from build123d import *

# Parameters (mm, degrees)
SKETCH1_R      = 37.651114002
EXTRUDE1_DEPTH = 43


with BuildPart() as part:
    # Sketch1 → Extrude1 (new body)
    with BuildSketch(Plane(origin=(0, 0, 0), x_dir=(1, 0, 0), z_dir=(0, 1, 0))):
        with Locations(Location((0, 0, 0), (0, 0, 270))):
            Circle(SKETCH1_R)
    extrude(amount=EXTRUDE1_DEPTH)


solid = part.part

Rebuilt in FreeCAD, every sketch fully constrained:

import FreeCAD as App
import Part
import Sketcher
from FreeCAD import Vector

doc = App.newDocument("Part")
params = doc.addObject("Spreadsheet::Sheet", "Params")
for row, (alias, value) in enumerate([
    ("pad1_length", "43 mm"),
], start=1):
    params.set(f"A{row}", alias)
    params.set(f"B{row}", "=" + value)
    params.setAlias(f"B{row}", alias)

body = doc.addObject("PartDesign::Body", "Body")

# Sketch on XZ plane
sketch1 = doc.addObject("Sketcher::SketchObject", "Sketch")
body.addObject(sketch1)
sketch1.AttachmentSupport = (doc.XZ_Plane, [""])
sketch1.MapMode = "FlatFace"
sketch1.addGeometry(Part.Circle(Vector(0, 0, 0), Vector(0, 0, 1), 38), False)
sketch1.addConstraint([
    Sketcher.Constraint("Coincident", 0, 3, -1, 1),
    Sketcher.Constraint("Diameter", 0, 75.302228),
])
pad1 = doc.addObject("PartDesign::Pad", "Pad")
body.addObject(pad1)
pad1.Profile = sketch1
pad1.setExpression("Length", "Params.pad1_length")
pad1.Reversed = True

doc.recompute()
